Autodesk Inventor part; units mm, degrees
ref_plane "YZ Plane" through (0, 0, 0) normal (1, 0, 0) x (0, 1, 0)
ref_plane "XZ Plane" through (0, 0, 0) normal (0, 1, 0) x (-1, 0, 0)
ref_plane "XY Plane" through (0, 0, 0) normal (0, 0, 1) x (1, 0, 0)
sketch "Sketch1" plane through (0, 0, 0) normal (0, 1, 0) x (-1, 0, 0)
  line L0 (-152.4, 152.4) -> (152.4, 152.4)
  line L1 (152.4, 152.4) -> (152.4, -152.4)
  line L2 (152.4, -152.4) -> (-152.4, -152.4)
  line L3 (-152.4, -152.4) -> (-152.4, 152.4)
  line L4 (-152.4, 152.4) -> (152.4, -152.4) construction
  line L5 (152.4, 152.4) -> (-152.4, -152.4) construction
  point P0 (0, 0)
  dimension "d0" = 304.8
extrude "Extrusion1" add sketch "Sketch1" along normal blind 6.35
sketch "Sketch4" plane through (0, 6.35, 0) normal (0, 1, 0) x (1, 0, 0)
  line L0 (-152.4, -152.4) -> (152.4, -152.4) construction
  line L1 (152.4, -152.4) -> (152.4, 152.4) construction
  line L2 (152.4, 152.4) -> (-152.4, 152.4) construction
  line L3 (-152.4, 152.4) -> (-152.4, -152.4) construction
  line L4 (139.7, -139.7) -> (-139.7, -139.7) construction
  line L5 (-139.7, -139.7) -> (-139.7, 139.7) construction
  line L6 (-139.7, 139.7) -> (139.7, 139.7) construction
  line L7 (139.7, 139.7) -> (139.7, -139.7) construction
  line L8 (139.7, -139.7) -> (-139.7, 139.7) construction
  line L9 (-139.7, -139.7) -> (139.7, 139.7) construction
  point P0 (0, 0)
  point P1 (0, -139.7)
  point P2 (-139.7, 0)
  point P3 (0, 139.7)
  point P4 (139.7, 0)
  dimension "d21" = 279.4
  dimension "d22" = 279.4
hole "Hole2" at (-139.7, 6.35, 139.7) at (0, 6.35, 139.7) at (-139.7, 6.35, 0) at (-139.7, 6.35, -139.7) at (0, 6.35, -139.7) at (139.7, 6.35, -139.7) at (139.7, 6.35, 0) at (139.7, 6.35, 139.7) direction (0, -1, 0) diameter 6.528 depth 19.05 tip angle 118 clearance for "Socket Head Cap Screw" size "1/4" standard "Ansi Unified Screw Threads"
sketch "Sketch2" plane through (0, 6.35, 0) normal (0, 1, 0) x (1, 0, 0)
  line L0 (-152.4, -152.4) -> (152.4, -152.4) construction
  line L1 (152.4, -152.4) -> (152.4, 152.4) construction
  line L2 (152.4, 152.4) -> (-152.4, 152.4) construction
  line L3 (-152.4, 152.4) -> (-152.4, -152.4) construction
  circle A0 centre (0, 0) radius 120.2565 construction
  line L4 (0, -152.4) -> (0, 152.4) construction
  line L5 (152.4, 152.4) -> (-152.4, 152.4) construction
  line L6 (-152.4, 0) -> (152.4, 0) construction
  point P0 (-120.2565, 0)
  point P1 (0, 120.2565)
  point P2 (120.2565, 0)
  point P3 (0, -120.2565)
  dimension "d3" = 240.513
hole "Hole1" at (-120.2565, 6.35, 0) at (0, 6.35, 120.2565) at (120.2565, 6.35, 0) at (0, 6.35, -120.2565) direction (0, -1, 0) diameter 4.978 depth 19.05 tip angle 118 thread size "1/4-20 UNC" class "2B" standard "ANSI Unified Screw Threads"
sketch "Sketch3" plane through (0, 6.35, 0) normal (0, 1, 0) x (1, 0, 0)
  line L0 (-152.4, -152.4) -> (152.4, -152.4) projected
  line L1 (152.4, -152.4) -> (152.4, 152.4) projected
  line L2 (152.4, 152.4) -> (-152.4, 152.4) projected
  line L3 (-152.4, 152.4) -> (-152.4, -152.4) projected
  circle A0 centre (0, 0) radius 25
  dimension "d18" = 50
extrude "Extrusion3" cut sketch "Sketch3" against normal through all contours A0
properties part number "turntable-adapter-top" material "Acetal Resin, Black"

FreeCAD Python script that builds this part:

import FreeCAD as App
import Part
import Sketcher
Q = App.Units.Quantity

doc = App.newDocument("Part")
body = doc.addObject("PartDesign::Body", "Body")

sketch1 = doc.addObject("Sketcher::SketchObject", "Sketch")
body.addObject(sketch1)
sketch1.AttachmentSupport = (doc.XZ_Plane, [""])
sketch1.MapMode = "FlatFace"
sketch1.addGeometry([
    Part.LineSegment(App.Vector(-152, 152, 0), App.Vector(152, 152, 0)),
    Part.LineSegment(App.Vector(152, 152, 0), App.Vector(152, -152, 0)),
    Part.LineSegment(App.Vector(152, -152, 0), App.Vector(-152, -152, 0)),
    Part.LineSegment(App.Vector(-152, -152, 0), App.Vector(-152, 152, 0)),
], False)
sketch1.addConstraint([
    Sketcher.Constraint("Coincident", 0, 2, 1, 1),
    Sketcher.Constraint("Coincident", 1, 2, 2, 1),
    Sketcher.Constraint("Coincident", 2, 2, 3, 1),
    Sketcher.Constraint("Coincident", 3, 2, 0, 1),
    Sketcher.Constraint("Horizontal", 0),
    Sketcher.Constraint("Vertical", 1),
    Sketcher.Constraint("Horizontal", 2),
    Sketcher.Constraint("Vertical", 3),
    Sketcher.Constraint("Symmetric", 0, 2, 2, 2, -1, 1),
    Sketcher.Constraint("Equal", 2, 1),
    Sketcher.Constraint("DistanceX", 0, 1, 0, 2, Q("12 in")),
])
pad1 = doc.addObject("PartDesign::Pad", "Pad")
body.addObject(pad1)
pad1.Profile = sketch1
pad1.Length = Q("0.25 in")
pad1.Reversed = True

sketch2 = doc.addObject("Sketcher::SketchObject", "Sketch001")
body.addObject(sketch2)
sketch2.AttachmentSupport = (doc.XZ_Plane, [""])
sketch2.MapMode = "FlatFace"
sketch2.AttachmentOffset = App.Placement(App.Vector(0, 0, -0.25 * 25.4), App.Rotation())
sketch2.addGeometry([
    Part.Circle(App.Vector(-139.7, 139.7, 0), App.Vector(0, 0, 1), 3.3),
    Part.Circle(App.Vector(0, 139.7, 0), App.Vector(0, 0, 1), 3.3),
    Part.Circle(App.Vector(-139.7, 0, 0), App.Vector(0, 0, 1), 3.3),
    Part.Circle(App.Vector(-139.7, -139.7, 0), App.Vector(0, 0, 1), 3.3),
    Part.Circle(App.Vector(0, -139.7, 0), App.Vector(0, 0, 1), 3.3),
    Part.Circle(App.Vector(139.7, -139.7, 0), App.Vector(0, 0, 1), 3.3),
    Part.Circle(App.Vector(139.7, 0, 0), App.Vector(0, 0, 1), 3.3),
    Part.Circle(App.Vector(139.7, 139.7, 0), App.Vector(0, 0, 1), 3.3),
], False)
sketch2.addConstraint([
    Sketcher.Constraint("Equal", 0, 1),
    Sketcher.Constraint("Equal", 1, 2),
    Sketcher.Constraint("Equal", 2, 3),
    Sketcher.Constraint("Equal", 3, 4),
    Sketcher.Constraint("Equal", 4, 5),
    Sketcher.Constraint("Equal", 5, 6),
    Sketcher.Constraint("Equal", 6, 7),
    Sketcher.Constraint("Symmetric", 1, 3, 4, 3, -1, 1),
    Sketcher.Constraint("Symmetric", 0, 3, 5, 3, -1, 1),
    Sketcher.Constraint("Symmetric", 2, 3, 6, 3, -1, 1),
    Sketcher.Constraint("Symmetric", 3, 3, 7, 3, -1, 1),
    Sketcher.Constraint("Symmetric", 3, 3, 5, 3, -2),
    Sketcher.Constraint("PointOnObject", 1, 3, -2),
    Sketcher.Constraint("PointOnObject", 2, 3, -1),
    Sketcher.Constraint("Horizontal", 0, 3, 1, 3),
    Sketcher.Constraint("Vertical", 0, 3, 2, 3),
    Sketcher.Constraint("Diameter", 0, Q("0.257 in")),
    Sketcher.Constraint("DistanceY", 3, 3, 0, 3, Q("11 in")),
    Sketcher.Constraint("DistanceX", 3, 3, 5, 3, Q("11 in")),
])
doc.recompute()
hole = doc.addObject("PartDesign::Hole", "Hole")
body.addObject(hole)
hole.Profile = sketch2
hole.ThreadType = "None"
hole.Diameter = Q("0.2570079 in")
hole.DepthType = "Dimension"
hole.Depth = Q("0.75 in")
hole.DrillPoint = "Angled"
hole.DrillPointAngle = 118
hole.Reversed = True

sketch3 = doc.addObject("Sketcher::SketchObject", "Sketch002")
body.addObject(sketch3)
sketch3.AttachmentSupport = (doc.XZ_Plane, [""])
sketch3.MapMode = "FlatFace"
sketch3.AttachmentOffset = App.Placement(App.Vector(0, 0, -0.25 * 25.4), App.Rotation())
sketch3.addGeometry([
    Part.Circle(App.Vector(-120.3, 0, 0), App.Vector(0, 0, 1), 2.5),
    Part.Circle(App.Vector(0, 120.3, 0), App.Vector(0, 0, 1), 2.5),
    Part.Circle(App.Vector(120.3, 0, 0), App.Vector(0, 0, 1), 2.5),
    Part.Circle(App.Vector(0, -120.3, 0), App.Vector(0, 0, 1), 2.5),
], False)
sketch3.addConstraint([
    Sketcher.Constraint("Equal", 0, 1),
    Sketcher.Constraint("Equal", 1, 2),
    Sketcher.Constraint("Equal", 2, 3),
    Sketcher.Constraint("Symmetric", 0, 3, 2, 3, -1, 1),
    Sketcher.Constraint("Symmetric", 1, 3, 3, 3, -1, 1),
    Sketcher.Constraint("PointOnObject", 0, 3, -1),
    Sketcher.Constraint("PointOnObject", 1, 3, -2),
    Sketcher.Constraint("Diameter", 0, Q("4.978 mm")),
    Sketcher.Constraint("DistanceX", 0, 3, -1, 1, Q("4.7345 in")),
    Sketcher.Constraint("DistanceY", -1, 1, 1, 3, Q("4.7345 in")),
])
doc.recompute()
hole2 = doc.addObject("PartDesign::Hole", "Hole001")
body.addObject(hole2)
hole2.Profile = sketch3
hole2.ThreadType = "None"
hole2.Diameter = 4.978
hole2.DepthType = "Dimension"
hole2.Depth = Q("0.75 in")
hole2.DrillPoint = "Angled"
hole2.DrillPointAngle = 118
hole2.Reversed = True

sketch4 = doc.addObject("Sketcher::SketchObject", "Sketch003")
body.addObject(sketch4)
sketch4.AttachmentSupport = (doc.XZ_Plane, [""])
sketch4.MapMode = "FlatFace"
sketch4.AttachmentOffset = App.Placement(App.Vector(0, 0, -0.25 * 25.4), App.Rotation())
sketch4.addGeometry(Part.Circle(App.Vector(0, 0, 0), App.Vector(0, 0, 1), 25), False)
sketch4.addConstraint([
    Sketcher.Constraint("Coincident", 0, 3, -1, 1),
    Sketcher.Constraint("Diameter", 0, Q("1.9685 in")),
])
pocket1 = doc.addObject("PartDesign::Pocket", "Pocket")
body.addObject(pocket1)
pocket1.Profile = sketch4
pocket1.Type = "ThroughAll"
pocket1.Reversed = True

doc.recompute()
